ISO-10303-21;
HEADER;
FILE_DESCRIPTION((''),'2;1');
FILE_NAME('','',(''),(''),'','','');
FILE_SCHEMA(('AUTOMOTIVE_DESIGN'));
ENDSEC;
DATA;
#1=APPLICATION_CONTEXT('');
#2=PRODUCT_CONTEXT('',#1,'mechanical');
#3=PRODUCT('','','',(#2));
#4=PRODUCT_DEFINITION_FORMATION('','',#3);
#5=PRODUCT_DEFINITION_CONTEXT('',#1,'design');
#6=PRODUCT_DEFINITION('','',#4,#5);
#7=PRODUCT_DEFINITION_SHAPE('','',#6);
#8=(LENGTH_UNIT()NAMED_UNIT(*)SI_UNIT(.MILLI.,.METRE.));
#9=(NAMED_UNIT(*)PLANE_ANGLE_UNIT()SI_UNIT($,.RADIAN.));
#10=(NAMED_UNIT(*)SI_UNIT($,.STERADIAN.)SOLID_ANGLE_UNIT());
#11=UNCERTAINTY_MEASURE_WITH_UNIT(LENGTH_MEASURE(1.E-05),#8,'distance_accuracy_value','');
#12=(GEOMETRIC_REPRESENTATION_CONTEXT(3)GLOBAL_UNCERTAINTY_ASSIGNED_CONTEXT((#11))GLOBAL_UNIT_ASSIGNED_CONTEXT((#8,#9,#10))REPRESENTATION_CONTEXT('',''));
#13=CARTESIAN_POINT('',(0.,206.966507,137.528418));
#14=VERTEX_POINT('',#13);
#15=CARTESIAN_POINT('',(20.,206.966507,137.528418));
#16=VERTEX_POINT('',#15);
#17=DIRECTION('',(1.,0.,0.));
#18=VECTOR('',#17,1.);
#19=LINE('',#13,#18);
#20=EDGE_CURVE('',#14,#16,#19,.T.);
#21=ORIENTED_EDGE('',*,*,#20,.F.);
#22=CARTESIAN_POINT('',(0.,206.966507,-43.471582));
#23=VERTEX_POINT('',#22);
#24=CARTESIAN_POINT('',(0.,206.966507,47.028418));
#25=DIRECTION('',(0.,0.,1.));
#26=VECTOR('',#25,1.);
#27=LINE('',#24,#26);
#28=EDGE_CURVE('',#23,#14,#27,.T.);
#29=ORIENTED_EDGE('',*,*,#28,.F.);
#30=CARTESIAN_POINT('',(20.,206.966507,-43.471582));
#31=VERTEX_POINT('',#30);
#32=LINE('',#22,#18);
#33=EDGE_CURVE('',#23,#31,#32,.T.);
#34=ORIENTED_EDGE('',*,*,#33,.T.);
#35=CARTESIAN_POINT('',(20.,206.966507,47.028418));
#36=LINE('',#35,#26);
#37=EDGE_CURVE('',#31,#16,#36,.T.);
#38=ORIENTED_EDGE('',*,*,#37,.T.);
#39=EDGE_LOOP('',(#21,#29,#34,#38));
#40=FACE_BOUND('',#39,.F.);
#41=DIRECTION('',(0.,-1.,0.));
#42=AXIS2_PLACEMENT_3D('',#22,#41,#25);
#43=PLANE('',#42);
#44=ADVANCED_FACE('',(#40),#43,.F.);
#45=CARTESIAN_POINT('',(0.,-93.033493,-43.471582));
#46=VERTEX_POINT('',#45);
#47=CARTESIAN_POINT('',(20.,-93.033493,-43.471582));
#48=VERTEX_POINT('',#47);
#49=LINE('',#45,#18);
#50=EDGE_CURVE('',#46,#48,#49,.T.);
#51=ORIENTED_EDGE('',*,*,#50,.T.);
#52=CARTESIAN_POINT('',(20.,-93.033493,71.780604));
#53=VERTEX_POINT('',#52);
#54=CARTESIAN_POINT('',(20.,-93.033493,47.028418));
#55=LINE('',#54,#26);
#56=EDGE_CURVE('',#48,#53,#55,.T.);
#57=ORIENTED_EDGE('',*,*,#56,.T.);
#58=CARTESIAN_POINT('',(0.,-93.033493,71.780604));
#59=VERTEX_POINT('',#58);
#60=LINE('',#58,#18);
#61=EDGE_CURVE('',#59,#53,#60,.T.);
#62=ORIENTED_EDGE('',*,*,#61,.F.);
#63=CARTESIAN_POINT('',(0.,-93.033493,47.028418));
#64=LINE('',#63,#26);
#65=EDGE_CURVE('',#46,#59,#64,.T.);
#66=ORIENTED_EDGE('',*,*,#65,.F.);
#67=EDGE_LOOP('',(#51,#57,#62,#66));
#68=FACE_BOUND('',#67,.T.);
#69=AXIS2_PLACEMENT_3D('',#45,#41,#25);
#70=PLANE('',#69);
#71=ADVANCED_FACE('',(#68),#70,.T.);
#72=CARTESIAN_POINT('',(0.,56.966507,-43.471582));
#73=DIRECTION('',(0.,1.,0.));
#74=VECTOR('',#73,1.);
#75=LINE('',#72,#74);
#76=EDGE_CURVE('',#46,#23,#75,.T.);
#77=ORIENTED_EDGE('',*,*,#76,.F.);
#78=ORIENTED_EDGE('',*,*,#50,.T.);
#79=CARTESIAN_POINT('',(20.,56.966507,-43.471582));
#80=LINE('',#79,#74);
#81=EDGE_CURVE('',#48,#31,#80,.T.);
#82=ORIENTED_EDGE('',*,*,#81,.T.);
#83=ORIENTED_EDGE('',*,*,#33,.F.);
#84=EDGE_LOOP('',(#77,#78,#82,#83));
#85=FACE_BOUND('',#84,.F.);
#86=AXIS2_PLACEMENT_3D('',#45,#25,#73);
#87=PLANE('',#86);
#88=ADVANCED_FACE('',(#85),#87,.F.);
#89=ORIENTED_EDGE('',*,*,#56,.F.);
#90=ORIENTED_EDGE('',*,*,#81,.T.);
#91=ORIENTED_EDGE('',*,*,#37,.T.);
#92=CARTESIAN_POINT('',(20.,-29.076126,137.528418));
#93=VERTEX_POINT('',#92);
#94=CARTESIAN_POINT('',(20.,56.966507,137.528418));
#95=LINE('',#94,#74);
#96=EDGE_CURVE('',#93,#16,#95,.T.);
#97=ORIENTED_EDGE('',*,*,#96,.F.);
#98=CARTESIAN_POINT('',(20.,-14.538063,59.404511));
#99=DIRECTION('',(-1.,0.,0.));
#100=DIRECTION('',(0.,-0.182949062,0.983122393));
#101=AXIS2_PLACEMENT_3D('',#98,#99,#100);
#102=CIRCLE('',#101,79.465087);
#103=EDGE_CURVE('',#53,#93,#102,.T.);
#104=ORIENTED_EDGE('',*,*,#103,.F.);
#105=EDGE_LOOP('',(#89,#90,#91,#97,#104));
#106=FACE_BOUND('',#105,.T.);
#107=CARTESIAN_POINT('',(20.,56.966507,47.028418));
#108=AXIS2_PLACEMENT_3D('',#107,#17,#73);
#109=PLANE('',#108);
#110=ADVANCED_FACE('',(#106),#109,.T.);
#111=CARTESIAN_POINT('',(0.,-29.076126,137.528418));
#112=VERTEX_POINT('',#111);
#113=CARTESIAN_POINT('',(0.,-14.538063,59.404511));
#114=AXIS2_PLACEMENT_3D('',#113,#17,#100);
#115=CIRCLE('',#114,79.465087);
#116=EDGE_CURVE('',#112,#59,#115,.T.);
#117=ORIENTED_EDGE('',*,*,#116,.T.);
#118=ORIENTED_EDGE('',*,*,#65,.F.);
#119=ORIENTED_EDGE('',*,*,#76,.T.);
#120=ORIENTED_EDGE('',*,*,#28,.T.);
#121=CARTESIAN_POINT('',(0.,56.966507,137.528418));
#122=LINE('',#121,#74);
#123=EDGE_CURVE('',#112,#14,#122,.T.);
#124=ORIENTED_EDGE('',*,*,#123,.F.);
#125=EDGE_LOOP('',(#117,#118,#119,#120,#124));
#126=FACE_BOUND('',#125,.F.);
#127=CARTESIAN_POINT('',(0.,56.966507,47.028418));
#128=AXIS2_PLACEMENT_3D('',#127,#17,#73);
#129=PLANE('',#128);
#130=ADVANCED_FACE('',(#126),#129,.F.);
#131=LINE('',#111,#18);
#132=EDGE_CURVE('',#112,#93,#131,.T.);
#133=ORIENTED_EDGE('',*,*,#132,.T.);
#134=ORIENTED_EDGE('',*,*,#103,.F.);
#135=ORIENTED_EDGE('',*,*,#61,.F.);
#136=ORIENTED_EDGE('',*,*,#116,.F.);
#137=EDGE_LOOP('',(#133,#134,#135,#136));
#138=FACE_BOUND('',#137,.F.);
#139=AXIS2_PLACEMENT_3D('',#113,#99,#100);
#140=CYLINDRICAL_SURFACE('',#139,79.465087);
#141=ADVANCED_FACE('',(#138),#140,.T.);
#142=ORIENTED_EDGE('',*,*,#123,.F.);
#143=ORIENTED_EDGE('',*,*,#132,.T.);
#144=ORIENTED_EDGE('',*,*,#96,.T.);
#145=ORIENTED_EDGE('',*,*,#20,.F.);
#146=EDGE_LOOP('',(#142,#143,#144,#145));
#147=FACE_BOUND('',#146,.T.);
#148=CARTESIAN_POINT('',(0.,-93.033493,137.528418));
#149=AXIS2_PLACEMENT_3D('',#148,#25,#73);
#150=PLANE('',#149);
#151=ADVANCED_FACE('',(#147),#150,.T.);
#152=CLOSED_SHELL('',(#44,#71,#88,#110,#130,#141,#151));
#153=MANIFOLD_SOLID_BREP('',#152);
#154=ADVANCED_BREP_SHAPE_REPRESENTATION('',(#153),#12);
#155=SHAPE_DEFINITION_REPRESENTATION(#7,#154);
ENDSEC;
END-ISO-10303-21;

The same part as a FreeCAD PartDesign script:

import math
import FreeCAD as App
import Part
import Sketcher
Q = App.Units.Quantity

doc = App.newDocument("Part")
params = doc.addObject("Spreadsheet::Sheet", "Params")
for row, (alias, value) in enumerate([
    ("sketch1_width", "300 mm"),
    ("sketch1_height", "181 mm"),
    ("pad1_length", "20 mm"),
    ("pocket1_length", "25 mm"),
], start=1):
    params.set(f"A{row}", alias)
    params.set(f"B{row}", "=" + value)
    params.setAlias(f"B{row}", alias)

body = doc.addObject("PartDesign::Body", "Body")

# Sketch on YZ plane
sketch1 = doc.addObject("Sketcher::SketchObject", "Sketch")
body.addObject(sketch1)
sketch1.AttachmentSupport = (doc.YZ_Plane, [""])
sketch1.MapMode = "FlatFace"
sketch1.addGeometry([
    Part.LineSegment(App.Vector(-93, 138, 0), App.Vector(-93, -43, 0)),
    Part.LineSegment(App.Vector(-93, -43, 0), App.Vector(207, -43, 0)),
    Part.LineSegment(App.Vector(207, -43, 0), App.Vector(207, 138, 0)),
    Part.LineSegment(App.Vector(207, 138, 0), App.Vector(-93, 138, 0)),
], False)
sketch1.addConstraint([
    Sketcher.Constraint("Coincident", 0, 2, 1, 1),
    Sketcher.Constraint("Coincident", 1, 2, 2, 1),
    Sketcher.Constraint("Coincident", 2, 2, 3, 1),
    Sketcher.Constraint("Coincident", 3, 2, 0, 1),
    Sketcher.Constraint("Vertical", 0),
    Sketcher.Constraint("Horizontal", 1),
    Sketcher.Constraint("Vertical", 2),
    Sketcher.Constraint("Horizontal", 3),
    Sketcher.Constraint("DistanceX", 1, 1, 1, 2, Q("300 mm")),
    Sketcher.Constraint("DistanceY", 0, 2, 0, 1, Q("181 mm")),
    Sketcher.Constraint("DistanceX", 0, 2, -1, 1, Q("93.033493 mm")),
    Sketcher.Constraint("DistanceY", 0, 2, -1, 1, Q("43.471582 mm")),
])
sketch1.setExpression("Constraints[8]", "Params.sketch1_width")
sketch1.setExpression("Constraints[9]", "Params.sketch1_height")
pad1 = doc.addObject("PartDesign::Pad", "Pad")
body.addObject(pad1)
pad1.Profile = sketch1
pad1.setExpression("Length", "Params.pad1_length")

# Sketch on YZ plane
sketch2 = doc.addObject("Sketcher::SketchObject", "Sketch001")
body.addObject(sketch2)
sketch2.AttachmentSupport = (doc.YZ_Plane, [""])
sketch2.MapMode = "FlatFace"
sketch2.addGeometry([
    Part.ArcOfCircle(Part.Circle(App.Vector(-15, 59, 0), App.Vector(0, 0, 1), 79), math.radians(101), math.radians(171)),
    Part.LineSegment(App.Vector(-93, 72, 0), App.Vector(-93, 138, 0)),
    Part.LineSegment(App.Vector(-93, 138, 0), App.Vector(-29, 138, 0)),
], False)
sketch2.addConstraint([
    Sketcher.Constraint("Coincident", 0, 2, 1, 1),
    Sketcher.Constraint("Coincident", 1, 2, 2, 1),
    Sketcher.Constraint("Coincident", 2, 2, 0, 1),
    Sketcher.Constraint("Vertical", 1),
    Sketcher.Constraint("Horizontal", 2),
    Sketcher.Constraint("Radius", 0, Q("79.465087 mm")),
    Sketcher.Constraint("DistanceX", 2, 1, 2, 2, Q("63.957366 mm")),
    Sketcher.Constraint("DistanceY", 1, 1, 1, 2, Q("65.747814 mm")),
    Sketcher.Constraint("DistanceY", -1, 1, 0, 3, Q("59.404511 mm")),
    Sketcher.Constraint("DistanceX", 0, 3, -1, 1, Q("14.538063 mm")),
])
pocket1 = doc.addObject("PartDesign::Pocket", "Pocket")
body.addObject(pocket1)
pocket1.Profile = sketch2
pocket1.setExpression("Length", "Params.pocket1_length")
pocket1.Reversed = True

doc.recompute()
